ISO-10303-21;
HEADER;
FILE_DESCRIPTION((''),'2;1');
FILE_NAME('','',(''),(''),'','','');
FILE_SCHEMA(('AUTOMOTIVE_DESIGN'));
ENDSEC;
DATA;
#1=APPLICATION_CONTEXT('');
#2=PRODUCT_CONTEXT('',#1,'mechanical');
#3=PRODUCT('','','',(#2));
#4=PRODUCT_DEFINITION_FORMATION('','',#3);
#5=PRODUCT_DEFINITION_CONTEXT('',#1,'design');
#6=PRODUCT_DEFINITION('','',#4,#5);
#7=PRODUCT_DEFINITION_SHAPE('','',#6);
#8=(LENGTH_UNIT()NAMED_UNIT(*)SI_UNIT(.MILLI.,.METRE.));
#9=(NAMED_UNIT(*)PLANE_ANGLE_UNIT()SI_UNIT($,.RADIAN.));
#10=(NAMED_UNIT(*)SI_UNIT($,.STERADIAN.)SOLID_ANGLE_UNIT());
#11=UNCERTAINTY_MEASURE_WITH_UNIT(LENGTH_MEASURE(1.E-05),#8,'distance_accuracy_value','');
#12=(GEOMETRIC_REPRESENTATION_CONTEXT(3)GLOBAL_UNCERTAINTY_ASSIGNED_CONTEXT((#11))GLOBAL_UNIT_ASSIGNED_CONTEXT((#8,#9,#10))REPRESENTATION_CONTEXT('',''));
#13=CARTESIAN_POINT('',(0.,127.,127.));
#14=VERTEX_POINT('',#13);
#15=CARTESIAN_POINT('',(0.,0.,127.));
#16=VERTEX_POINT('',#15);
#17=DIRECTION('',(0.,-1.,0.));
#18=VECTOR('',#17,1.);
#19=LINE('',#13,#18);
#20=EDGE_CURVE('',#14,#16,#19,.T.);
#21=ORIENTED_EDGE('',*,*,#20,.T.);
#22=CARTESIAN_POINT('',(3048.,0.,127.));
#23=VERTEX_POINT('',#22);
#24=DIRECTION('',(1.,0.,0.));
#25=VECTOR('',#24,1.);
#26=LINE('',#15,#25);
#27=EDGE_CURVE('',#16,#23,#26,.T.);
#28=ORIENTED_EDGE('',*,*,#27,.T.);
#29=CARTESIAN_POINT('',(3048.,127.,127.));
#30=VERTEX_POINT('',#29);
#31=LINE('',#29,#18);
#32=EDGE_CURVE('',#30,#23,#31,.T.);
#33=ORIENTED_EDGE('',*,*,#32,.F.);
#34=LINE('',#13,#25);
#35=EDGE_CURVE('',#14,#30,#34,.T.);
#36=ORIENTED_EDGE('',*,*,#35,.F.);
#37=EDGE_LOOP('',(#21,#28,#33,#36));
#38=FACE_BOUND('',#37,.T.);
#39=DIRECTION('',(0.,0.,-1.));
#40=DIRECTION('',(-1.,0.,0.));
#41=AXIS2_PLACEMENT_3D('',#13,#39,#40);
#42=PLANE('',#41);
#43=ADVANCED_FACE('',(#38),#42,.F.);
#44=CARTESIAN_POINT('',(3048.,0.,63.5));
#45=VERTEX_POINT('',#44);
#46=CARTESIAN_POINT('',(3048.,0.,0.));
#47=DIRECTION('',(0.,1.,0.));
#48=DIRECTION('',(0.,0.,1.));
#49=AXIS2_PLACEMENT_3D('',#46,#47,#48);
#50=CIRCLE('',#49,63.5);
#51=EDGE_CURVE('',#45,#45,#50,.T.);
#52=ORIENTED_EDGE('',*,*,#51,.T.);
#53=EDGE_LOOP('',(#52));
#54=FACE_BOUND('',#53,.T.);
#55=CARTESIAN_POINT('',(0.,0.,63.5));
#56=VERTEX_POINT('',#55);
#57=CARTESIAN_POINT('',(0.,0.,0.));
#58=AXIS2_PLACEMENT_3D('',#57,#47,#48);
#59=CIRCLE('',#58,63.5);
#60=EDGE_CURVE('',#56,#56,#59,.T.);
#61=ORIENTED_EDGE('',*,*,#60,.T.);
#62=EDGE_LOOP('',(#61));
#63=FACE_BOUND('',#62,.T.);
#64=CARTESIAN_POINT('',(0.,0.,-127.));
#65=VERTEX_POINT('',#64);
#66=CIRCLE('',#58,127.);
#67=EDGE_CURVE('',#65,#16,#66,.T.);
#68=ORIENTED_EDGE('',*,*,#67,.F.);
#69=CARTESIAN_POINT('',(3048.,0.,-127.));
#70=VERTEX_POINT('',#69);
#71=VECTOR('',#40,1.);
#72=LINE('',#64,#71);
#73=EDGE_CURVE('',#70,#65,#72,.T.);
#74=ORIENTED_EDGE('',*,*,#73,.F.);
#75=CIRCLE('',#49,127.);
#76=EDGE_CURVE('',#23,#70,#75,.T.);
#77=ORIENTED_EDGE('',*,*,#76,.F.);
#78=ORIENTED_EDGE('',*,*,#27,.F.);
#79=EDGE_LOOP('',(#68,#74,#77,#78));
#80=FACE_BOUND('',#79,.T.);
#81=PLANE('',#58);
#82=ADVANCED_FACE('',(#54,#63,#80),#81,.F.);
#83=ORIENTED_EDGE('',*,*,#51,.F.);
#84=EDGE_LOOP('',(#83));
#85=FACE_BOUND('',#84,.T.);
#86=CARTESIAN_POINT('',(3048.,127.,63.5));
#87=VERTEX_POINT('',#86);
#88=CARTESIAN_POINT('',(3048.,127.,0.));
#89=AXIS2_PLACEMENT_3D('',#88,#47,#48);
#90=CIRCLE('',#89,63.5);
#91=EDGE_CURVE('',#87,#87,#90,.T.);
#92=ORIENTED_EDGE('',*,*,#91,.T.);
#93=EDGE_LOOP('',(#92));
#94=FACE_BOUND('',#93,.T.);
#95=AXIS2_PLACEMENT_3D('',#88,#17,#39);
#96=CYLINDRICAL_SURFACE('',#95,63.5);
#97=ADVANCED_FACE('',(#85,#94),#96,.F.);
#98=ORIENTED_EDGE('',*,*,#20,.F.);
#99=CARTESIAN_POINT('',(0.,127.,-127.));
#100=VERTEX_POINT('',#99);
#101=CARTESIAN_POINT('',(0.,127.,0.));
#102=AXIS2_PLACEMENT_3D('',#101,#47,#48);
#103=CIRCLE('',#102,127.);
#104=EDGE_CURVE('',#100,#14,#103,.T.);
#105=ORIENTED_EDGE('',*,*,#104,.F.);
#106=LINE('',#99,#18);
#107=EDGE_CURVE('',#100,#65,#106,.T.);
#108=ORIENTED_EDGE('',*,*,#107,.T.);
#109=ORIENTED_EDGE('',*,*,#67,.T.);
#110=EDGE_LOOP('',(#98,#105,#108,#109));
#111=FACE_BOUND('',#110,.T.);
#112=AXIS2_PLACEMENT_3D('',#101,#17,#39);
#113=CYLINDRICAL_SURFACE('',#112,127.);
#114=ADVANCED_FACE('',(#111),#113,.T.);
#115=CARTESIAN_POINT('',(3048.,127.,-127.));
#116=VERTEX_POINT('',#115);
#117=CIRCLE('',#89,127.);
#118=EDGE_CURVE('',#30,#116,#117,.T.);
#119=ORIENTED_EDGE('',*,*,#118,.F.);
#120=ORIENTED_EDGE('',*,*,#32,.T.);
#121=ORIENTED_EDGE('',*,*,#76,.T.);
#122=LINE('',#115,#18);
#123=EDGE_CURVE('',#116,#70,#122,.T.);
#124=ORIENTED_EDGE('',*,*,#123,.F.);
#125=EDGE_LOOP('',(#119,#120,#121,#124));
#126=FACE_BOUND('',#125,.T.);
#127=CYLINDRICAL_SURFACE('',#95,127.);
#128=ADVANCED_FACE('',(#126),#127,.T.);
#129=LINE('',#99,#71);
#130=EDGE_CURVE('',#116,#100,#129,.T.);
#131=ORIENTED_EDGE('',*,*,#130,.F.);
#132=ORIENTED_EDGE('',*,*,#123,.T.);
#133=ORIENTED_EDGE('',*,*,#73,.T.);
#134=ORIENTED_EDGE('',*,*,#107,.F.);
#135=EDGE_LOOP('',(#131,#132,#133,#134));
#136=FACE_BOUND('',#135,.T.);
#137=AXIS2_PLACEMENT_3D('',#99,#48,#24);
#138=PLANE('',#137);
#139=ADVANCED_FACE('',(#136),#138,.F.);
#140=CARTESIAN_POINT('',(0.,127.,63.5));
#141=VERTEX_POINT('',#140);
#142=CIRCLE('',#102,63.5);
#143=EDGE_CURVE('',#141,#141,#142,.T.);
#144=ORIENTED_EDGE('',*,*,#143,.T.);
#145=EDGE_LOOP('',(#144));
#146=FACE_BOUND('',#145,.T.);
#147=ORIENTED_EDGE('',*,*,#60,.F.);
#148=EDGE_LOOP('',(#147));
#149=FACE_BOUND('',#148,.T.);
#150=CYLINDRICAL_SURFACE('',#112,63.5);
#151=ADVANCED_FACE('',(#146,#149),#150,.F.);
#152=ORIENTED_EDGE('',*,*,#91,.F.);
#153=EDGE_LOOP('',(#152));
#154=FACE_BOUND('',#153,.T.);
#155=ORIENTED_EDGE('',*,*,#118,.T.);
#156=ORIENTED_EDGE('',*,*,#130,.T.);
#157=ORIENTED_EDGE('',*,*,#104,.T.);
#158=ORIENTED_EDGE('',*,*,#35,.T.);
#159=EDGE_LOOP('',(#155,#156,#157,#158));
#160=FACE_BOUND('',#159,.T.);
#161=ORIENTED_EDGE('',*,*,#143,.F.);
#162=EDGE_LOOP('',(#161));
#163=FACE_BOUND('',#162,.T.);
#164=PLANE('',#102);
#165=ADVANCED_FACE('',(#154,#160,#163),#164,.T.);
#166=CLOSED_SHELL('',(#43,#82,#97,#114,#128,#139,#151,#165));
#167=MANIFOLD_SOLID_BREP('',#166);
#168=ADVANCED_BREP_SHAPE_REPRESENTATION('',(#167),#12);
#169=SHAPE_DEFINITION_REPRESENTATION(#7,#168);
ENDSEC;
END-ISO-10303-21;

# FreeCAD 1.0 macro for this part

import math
import FreeCAD as App
import Part
import Sketcher
from FreeCAD import Vector
Q = App.Units.Quantity

doc = App.newDocument("Part")
body = doc.addObject("PartDesign::Body", "Body")

sketch1 = doc.addObject("Sketcher::SketchObject", "Sketch")
body.addObject(sketch1)
sketch1.AttachmentSupport = (doc.XZ_Plane, [""])
sketch1.MapMode = "FlatFace"
sketch1.addGeometry([
    Part.LineSegment(Vector(3048, -127, 0), Vector(0, -127, 0)),
    Part.ArcOfCircle(Part.Circle(Vector(0, 0, 0), Vector(0, 0, 1), 127), math.radians(90), math.radians(270)),
    Part.LineSegment(Vector(0, 127, 0), Vector(3048, 127, 0)),
    Part.ArcOfCircle(Part.Circle(Vector(3048, 0, 0), Vector(0, 0, 1), 127), math.radians(-90), math.radians(90)),
    Part.Circle(Vector(3048, 0, 0), Vector(0, 0, 1), 63.5),
    Part.Circle(Vector(0, 0, 0), Vector(0, 0, 1), 63.5),
], False)
sketch1.addConstraint([
    Sketcher.Constraint("Tangent", 0, 2, 1, 2),
    Sketcher.Constraint("Tangent", 1, 1, 2, 1),
    Sketcher.Constraint("Tangent", 2, 2, 3, 2),
    Sketcher.Constraint("Tangent", 3, 1, 0, 1),
    Sketcher.Constraint("Horizontal", 0),
    Sketcher.Constraint("Horizontal", 2),
    Sketcher.Constraint("Coincident", 1, 3, -1, 1),
    Sketcher.Constraint("Coincident", 5, 3, -1, 1),
    Sketcher.Constraint("Coincident", 4, 3, 3, 3),
    Sketcher.Constraint("Equal", 4, 5),
    Sketcher.Constraint("Diameter", 4, Q("5 in")),
    Sketcher.Constraint("Radius", 1, Q("5 in")),
    Sketcher.Constraint("DistanceX", 0, 2, 0, 1, Q("120 in")),
])
pad1 = doc.addObject("PartDesign::Pad", "Pad")
body.addObject(pad1)
pad1.Profile = sketch1
pad1.Length = Q("5 in")
pad1.Reversed = True

doc.recompute()
